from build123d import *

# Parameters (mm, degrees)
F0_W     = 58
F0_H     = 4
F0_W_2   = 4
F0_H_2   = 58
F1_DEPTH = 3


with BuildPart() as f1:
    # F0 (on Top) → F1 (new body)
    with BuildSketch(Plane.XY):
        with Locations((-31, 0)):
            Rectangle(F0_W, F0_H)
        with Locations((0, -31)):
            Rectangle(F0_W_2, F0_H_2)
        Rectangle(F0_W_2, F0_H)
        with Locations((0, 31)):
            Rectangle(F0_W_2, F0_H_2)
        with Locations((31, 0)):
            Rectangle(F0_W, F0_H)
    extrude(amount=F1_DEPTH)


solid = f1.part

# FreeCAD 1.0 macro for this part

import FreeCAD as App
import Part
import Sketcher

V = App.Vector
Q = App.Units.Quantity


def add_polygon(sketch, points):
    """Adds a closed chain of lines whose ends are joined by coincident constraints."""
    first, n = sketch.GeometryCount, len(points)
    for a, b in zip(points, points[1:] + points[:1]):
        sketch.addGeometry(Part.LineSegment(App.Vector(*a, 0), App.Vector(*b, 0)), False)
    for i in range(n):
        sketch.addConstraint(Sketcher.Constraint("Coincident", first + i, 2, first + (i + 1) % n, 1))

doc = App.newDocument("Part")
body = doc.addObject("PartDesign::Body", "Body")

# Sketch on XY plane
sketch1 = body.newObject("Sketcher::SketchObject", "Sketch")
sketch1.AttachmentSupport = (doc.getObject("XY_Plane"), [""])
sketch1.MapMode = "FlatFace"
add_polygon(sketch1, [(-60, 2), (-60, -2), (-2, -2), (-2, -60), (2, -60), (2, -2), (60, -2), (60, 2), (2, 2), (2, 60), (-2, 60), (-2, 2)])  # lines 0-11
sketch1.addConstraint([
    Sketcher.Constraint("Vertical", 0),
    Sketcher.Constraint("Horizontal", 1),
    Sketcher.Constraint("Vertical", 2),
    Sketcher.Constraint("Horizontal", 3),
    Sketcher.Constraint("Vertical", 4),
    Sketcher.Constraint("Horizontal", 5),
    Sketcher.Constraint("Vertical", 6),
    Sketcher.Constraint("Horizontal", 7),
    Sketcher.Constraint("Vertical", 8),
    Sketcher.Constraint("Horizontal", 9),
    Sketcher.Constraint("Vertical", 10),
    Sketcher.Constraint("Horizontal", 11),
    Sketcher.Constraint("Symmetric", 0, 2, 6, 2, -1, 1),
    Sketcher.Constraint("Symmetric", 2, 2, 8, 2, -1, 1),
    Sketcher.Constraint("Symmetric", 4, 2, 10, 2, -1, 1),
    Sketcher.Constraint("Symmetric", 1, 2, 4, 2, -2),
    Sketcher.Constraint("Equal", 9, 0),
    Sketcher.Constraint("Equal", 11, 2),
    Sketcher.Constraint("DistanceX", 1, 1, 1, 2, Q("58 mm")),
    Sketcher.Constraint("DistanceX", 3, 1, 3, 2, Q("4 mm")),
])
pad1 = body.newObject("PartDesign::Pad", "Pad")
pad1.Profile = sketch1
pad1.Length = 3

doc.recompute()
